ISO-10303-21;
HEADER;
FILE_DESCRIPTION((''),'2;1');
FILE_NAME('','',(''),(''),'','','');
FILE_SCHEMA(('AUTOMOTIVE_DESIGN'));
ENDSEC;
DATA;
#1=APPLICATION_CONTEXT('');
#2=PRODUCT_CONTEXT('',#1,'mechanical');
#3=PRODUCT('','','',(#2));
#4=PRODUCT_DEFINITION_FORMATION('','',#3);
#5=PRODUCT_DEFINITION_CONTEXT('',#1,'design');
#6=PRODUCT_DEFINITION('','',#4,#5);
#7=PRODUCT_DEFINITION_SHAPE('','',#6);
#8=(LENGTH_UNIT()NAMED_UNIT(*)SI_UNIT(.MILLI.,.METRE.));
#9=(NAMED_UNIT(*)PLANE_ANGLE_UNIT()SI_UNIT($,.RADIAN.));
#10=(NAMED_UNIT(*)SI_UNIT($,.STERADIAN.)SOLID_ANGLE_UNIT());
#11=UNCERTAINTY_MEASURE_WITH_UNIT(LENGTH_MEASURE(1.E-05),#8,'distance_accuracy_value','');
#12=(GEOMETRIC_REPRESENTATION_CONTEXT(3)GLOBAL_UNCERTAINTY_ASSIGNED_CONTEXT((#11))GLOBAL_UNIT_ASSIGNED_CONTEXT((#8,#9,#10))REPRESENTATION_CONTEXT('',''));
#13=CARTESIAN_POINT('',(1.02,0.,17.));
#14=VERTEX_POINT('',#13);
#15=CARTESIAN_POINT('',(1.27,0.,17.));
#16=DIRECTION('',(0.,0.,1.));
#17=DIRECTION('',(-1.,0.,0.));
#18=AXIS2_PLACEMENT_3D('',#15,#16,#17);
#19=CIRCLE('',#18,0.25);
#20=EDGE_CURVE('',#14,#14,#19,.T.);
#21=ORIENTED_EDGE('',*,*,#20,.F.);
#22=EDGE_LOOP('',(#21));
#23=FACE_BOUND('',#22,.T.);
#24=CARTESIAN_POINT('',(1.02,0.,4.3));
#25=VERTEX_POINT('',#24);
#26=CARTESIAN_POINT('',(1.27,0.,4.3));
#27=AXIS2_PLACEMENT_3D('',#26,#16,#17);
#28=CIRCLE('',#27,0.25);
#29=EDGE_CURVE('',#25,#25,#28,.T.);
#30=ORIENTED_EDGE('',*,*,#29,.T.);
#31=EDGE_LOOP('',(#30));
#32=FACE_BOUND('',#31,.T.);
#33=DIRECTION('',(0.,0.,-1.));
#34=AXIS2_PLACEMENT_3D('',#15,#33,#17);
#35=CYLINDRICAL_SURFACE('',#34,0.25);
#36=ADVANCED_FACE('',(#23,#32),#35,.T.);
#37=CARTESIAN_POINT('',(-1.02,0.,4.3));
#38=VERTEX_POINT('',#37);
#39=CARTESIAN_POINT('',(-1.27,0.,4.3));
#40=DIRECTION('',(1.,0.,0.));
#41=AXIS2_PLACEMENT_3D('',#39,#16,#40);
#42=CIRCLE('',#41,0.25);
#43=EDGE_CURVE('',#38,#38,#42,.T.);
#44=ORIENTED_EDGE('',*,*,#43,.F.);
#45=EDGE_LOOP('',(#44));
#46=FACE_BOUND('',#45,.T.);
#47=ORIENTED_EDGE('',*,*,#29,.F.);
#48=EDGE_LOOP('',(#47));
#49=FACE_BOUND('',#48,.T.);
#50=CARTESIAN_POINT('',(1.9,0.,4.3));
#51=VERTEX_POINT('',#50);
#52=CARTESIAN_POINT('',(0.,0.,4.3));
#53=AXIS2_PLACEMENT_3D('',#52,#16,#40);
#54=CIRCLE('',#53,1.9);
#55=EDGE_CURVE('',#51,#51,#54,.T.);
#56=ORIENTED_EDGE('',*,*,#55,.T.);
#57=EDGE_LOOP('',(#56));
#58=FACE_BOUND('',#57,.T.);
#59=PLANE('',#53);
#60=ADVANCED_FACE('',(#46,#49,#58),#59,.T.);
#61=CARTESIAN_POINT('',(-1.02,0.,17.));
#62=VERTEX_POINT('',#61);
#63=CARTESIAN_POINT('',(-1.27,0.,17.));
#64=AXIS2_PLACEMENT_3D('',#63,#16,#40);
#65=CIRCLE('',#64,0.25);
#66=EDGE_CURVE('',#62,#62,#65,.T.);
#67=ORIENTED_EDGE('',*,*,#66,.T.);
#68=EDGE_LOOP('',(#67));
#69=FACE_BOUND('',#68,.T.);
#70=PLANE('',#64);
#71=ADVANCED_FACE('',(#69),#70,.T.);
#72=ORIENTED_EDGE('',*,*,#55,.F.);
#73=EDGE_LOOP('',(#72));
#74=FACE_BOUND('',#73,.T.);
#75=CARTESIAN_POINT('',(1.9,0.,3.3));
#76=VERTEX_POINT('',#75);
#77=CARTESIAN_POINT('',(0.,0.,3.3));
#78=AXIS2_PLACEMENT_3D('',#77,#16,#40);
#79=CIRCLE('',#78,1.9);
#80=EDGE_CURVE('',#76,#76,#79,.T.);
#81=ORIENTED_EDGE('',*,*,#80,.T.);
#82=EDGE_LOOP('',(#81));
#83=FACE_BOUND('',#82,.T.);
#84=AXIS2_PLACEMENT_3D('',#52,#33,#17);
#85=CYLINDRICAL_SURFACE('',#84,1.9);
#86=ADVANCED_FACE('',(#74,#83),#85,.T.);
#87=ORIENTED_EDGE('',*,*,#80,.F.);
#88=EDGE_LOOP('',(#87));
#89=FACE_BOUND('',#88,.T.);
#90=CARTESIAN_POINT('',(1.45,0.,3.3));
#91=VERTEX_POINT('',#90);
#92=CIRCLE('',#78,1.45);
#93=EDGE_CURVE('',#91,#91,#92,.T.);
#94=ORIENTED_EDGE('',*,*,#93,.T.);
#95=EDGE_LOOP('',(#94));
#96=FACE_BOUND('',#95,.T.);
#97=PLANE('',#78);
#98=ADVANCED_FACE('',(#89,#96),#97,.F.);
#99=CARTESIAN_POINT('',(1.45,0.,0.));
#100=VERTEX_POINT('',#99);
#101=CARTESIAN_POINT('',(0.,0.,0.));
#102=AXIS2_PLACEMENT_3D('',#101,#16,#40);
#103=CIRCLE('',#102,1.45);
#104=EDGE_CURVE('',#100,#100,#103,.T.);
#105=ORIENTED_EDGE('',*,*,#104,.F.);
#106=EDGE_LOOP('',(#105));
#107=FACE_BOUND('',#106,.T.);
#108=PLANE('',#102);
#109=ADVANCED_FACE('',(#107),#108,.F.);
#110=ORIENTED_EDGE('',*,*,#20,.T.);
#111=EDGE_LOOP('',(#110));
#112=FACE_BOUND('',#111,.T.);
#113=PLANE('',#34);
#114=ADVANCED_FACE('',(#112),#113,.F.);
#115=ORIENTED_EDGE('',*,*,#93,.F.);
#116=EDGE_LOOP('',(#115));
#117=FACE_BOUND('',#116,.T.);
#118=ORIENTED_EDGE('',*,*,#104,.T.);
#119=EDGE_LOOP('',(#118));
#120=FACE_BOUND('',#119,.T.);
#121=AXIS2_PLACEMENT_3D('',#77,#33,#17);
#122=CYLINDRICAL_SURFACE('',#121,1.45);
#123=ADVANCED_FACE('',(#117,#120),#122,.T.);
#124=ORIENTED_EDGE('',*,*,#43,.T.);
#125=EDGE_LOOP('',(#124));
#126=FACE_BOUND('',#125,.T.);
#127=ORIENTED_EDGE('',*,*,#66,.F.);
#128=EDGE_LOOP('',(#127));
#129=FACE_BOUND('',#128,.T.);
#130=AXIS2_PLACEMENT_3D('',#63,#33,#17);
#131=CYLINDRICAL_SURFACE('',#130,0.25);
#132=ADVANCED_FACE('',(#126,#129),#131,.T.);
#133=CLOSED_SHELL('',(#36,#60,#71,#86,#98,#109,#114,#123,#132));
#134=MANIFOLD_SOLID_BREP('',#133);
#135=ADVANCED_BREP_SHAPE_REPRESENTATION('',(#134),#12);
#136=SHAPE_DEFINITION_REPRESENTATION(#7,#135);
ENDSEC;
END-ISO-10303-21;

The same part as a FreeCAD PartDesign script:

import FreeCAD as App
import Part
import Sketcher

doc = App.newDocument("Part")
body = doc.addObject("PartDesign::Body", "Body")

# Sketch on XY plane
sketch1 = body.newObject("Sketcher::SketchObject", "Sketch")
sketch1.AttachmentSupport = (doc.getObject("XY_Plane"), [""])
sketch1.MapMode = "FlatFace"
sketch1.addGeometry(Part.Circle(App.Vector(0, 0, 0), App.Vector(0, 0, 1), 1.4), False)
sketch1.addConstraint([
    Sketcher.Constraint("Coincident", 0, 3, -1, 1),
    Sketcher.Constraint("Diameter", 0, 2.9),
])
pad1 = body.newObject("PartDesign::Pad", "Pad")
pad1.Profile = sketch1
pad1.Length = 3.3

# Sketch on XY plane
sketch2 = body.newObject("Sketcher::SketchObject", "Sketch001")
sketch2.AttachmentSupport = (doc.getObject("XY_Plane"), [""])
sketch2.MapMode = "FlatFace"
sketch2.AttachmentOffset = App.Placement(App.Vector(0, 0, 3.3), App.Rotation())
sketch2.addGeometry(Part.Circle(App.Vector(0, 0, 0), App.Vector(0, 0, 1), 1.9), False)
sketch2.addConstraint([
    Sketcher.Constraint("Coincident", 0, 3, -1, 1),
    Sketcher.Constraint("Diameter", 0, 3.8),
])
pad2 = body.newObject("PartDesign::Pad", "Pad001")
pad2.Profile = sketch2
pad2.Length = 1

# Sketch on XY plane
sketch3 = body.newObject("Sketcher::SketchObject", "Sketch002")
sketch3.AttachmentSupport = (doc.getObject("XY_Plane"), [""])
sketch3.MapMode = "FlatFace"
sketch3.AttachmentOffset = App.Placement(App.Vector(0, 0, 4.3), App.Rotation())
sketch3.addGeometry([
    Part.Circle(App.Vector(-1.27, 0, 0), App.Vector(0, 0, 1), 0.25),
    Part.Circle(App.Vector(1.27, 0, 0), App.Vector(0, 0, 1), 0.25),
], False)
sketch3.addConstraint([
    Sketcher.Constraint("Equal", 0, 1),
    Sketcher.Constraint("Symmetric", 0, 3, 1, 3, -1, 1),
    Sketcher.Constraint("PointOnObject", 0, 3, -1),
    Sketcher.Constraint("Diameter", 0, 0.5),
    Sketcher.Constraint("DistanceX", 0, 3, -1, 1, 1.27),
])
pad3 = body.newObject("PartDesign::Pad", "Pad002")
pad3.Profile = sketch3
pad3.Length = 12.7

doc.recompute()
